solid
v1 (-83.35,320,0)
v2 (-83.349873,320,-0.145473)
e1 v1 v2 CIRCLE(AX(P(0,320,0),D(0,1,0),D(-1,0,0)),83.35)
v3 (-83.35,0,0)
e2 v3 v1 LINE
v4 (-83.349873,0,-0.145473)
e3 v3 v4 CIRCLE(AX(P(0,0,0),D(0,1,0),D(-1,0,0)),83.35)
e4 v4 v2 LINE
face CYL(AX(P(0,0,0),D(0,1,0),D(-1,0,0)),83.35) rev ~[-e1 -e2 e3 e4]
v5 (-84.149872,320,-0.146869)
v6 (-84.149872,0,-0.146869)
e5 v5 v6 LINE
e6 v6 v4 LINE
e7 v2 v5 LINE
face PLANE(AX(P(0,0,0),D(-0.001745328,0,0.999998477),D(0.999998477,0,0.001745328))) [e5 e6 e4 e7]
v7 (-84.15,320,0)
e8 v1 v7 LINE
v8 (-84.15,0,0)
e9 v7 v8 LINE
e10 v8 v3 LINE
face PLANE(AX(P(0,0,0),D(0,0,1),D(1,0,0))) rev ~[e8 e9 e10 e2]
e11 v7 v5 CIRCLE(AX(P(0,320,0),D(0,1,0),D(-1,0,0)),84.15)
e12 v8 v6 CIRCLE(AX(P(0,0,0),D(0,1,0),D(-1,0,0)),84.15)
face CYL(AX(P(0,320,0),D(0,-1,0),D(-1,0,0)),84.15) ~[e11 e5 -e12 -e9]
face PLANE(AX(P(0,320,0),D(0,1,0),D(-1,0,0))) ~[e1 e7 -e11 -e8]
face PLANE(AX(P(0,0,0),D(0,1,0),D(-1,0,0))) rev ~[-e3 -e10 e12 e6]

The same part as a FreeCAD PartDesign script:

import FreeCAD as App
import Part
import Sketcher
from FreeCAD import Vector


def add_polygon(sketch, points):
    """Adds a closed chain of lines whose ends are joined by coincident constraints."""
    first, n = sketch.GeometryCount, len(points)
    for a, b in zip(points, points[1:] + points[:1]):
        sketch.addGeometry(Part.LineSegment(App.Vector(*a, 0), App.Vector(*b, 0)), False)
    for i in range(n):
        sketch.addConstraint(Sketcher.Constraint("Coincident", first + i, 2, first + (i + 1) % n, 1))

doc = App.newDocument("Part")
body = doc.addObject("PartDesign::Body", "Body")

sketch1 = doc.addObject("Sketcher::SketchObject", "Sketch")
body.addObject(sketch1)
sketch1.AttachmentSupport = (doc.XY_Plane, [""])
sketch1.MapMode = "FlatFace"
add_polygon(sketch1, [(-83.3, 0), (-83.3, 320), (-84.2, 320), (-84.2, 0)])
sketch1.addConstraint(Sketcher.Constraint("Vertical", 0))
sketch1.addConstraint(Sketcher.Constraint("Horizontal", 1))
sketch1.addConstraint(Sketcher.Constraint("Vertical", 2))
sketch1.addConstraint(Sketcher.Constraint("Horizontal", 3))
sketch1.addConstraint(Sketcher.Constraint("PointOnObject", 2, 2, -1))
sketch1.addConstraint(Sketcher.Constraint("DistanceY", 0, 1, 0, 2, 320.0))
sketch1.addConstraint(Sketcher.Constraint("DistanceX", 1, 2, 1, 1, 0.8))
sketch1.addConstraint(Sketcher.Constraint("DistanceX", 0, 2, -1, 1, 83.35))
revolution = doc.addObject("PartDesign::Revolution", "Revolution")
body.addObject(revolution)
revolution.Profile = sketch1
revolution.ReferenceAxis = (sketch1, ["V_Axis"])
revolution.Angle = 359.9

doc.recompute()
